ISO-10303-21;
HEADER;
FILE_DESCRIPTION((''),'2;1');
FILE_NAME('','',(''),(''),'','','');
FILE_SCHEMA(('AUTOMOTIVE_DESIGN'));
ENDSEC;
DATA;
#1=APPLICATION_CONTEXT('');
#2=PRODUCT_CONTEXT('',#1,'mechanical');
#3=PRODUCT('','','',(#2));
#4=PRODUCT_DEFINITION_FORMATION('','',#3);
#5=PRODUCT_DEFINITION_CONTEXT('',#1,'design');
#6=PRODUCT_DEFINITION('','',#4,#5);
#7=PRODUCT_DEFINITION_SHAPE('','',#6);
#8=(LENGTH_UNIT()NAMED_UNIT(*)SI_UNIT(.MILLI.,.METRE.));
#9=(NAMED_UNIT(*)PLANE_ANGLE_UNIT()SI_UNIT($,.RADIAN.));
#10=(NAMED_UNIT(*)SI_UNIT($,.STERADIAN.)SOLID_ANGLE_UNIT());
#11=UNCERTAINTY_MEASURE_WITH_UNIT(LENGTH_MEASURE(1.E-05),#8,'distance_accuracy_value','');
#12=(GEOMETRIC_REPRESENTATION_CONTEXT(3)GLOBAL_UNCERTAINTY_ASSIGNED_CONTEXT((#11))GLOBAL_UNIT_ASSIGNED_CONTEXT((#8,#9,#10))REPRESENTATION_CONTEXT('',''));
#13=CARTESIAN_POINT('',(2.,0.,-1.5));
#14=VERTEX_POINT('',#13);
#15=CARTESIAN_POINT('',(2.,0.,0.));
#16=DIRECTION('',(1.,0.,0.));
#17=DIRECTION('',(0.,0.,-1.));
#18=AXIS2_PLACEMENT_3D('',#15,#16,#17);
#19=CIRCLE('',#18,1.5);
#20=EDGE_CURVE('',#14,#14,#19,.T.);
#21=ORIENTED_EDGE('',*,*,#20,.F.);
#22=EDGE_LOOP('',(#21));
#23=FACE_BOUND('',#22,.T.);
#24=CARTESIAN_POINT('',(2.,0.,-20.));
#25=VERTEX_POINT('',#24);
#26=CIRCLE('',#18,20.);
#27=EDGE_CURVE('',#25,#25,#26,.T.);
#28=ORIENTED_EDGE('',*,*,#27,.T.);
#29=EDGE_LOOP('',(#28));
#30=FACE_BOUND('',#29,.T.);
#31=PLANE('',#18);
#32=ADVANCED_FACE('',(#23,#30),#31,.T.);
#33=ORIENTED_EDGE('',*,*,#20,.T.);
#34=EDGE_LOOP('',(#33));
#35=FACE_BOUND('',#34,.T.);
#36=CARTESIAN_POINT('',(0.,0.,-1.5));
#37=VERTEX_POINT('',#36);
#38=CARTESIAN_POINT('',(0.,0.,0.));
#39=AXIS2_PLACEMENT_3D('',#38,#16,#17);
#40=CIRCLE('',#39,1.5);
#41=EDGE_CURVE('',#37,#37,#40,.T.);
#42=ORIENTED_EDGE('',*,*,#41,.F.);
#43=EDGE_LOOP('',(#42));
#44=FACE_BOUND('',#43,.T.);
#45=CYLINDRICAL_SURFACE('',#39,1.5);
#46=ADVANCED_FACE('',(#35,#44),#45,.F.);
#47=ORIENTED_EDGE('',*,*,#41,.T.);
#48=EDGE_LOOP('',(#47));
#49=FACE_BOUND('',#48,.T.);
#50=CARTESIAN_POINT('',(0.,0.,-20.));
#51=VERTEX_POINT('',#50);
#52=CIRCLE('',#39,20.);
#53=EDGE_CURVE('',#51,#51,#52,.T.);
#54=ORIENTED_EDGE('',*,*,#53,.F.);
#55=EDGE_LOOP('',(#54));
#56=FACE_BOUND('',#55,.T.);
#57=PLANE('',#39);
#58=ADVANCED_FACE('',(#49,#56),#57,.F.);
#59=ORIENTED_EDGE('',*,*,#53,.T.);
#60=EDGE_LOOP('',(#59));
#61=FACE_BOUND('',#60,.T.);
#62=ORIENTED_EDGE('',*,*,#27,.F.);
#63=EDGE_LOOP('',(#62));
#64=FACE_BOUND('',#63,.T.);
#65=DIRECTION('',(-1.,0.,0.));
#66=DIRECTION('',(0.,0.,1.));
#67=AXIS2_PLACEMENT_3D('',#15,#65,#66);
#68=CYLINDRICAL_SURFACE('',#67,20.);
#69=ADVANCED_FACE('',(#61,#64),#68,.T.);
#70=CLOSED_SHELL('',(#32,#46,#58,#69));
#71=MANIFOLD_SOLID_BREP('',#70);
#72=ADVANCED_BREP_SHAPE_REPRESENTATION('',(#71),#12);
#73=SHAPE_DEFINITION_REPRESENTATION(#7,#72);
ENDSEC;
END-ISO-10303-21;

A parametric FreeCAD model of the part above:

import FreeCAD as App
import Part
import Sketcher

V = App.Vector
Q = App.Units.Quantity

doc = App.newDocument("Part")
body = doc.addObject("PartDesign::Body", "Body")

# Sketch on YZ plane
sketch1 = body.newObject("Sketcher::SketchObject", "Sketch")
sketch1.AttachmentSupport = (doc.getObject("YZ_Plane"), [""])
sketch1.MapMode = "FlatFace"
sketch1.addGeometry(Part.Circle(V(0, 0, 0), V(0, 0, 1), 20), False)
sketch1.addConstraint(Sketcher.Constraint("Coincident", 0, 3, -1, 1))
sketch1.addConstraint(Sketcher.Constraint("Diameter", 0, Q("40 mm")))
pad1 = body.newObject("PartDesign::Pad", "Pad")
pad1.Profile = sketch1
pad1.Length = 2

# Sketch on YZ plane
sketch2 = body.newObject("Sketcher::SketchObject", "Sketch001")
sketch2.AttachmentSupport = (doc.getObject("YZ_Plane"), [""])
sketch2.MapMode = "FlatFace"
sketch2.AttachmentOffset = App.Placement(V(0, 0, 2), App.Rotation())
sketch2.addGeometry(Part.Circle(V(0, 0, 0), V(0, 0, 1), 1.5), False)
sketch2.addConstraint(Sketcher.Constraint("Coincident", 0, 3, -1, 1))
sketch2.addConstraint(Sketcher.Constraint("Diameter", 0, Q("3 mm")))
pocket1 = body.newObject("PartDesign::Pocket", "Pocket")
pocket1.Profile = sketch2
pocket1.Type = "ThroughAll"

doc.recompute()
